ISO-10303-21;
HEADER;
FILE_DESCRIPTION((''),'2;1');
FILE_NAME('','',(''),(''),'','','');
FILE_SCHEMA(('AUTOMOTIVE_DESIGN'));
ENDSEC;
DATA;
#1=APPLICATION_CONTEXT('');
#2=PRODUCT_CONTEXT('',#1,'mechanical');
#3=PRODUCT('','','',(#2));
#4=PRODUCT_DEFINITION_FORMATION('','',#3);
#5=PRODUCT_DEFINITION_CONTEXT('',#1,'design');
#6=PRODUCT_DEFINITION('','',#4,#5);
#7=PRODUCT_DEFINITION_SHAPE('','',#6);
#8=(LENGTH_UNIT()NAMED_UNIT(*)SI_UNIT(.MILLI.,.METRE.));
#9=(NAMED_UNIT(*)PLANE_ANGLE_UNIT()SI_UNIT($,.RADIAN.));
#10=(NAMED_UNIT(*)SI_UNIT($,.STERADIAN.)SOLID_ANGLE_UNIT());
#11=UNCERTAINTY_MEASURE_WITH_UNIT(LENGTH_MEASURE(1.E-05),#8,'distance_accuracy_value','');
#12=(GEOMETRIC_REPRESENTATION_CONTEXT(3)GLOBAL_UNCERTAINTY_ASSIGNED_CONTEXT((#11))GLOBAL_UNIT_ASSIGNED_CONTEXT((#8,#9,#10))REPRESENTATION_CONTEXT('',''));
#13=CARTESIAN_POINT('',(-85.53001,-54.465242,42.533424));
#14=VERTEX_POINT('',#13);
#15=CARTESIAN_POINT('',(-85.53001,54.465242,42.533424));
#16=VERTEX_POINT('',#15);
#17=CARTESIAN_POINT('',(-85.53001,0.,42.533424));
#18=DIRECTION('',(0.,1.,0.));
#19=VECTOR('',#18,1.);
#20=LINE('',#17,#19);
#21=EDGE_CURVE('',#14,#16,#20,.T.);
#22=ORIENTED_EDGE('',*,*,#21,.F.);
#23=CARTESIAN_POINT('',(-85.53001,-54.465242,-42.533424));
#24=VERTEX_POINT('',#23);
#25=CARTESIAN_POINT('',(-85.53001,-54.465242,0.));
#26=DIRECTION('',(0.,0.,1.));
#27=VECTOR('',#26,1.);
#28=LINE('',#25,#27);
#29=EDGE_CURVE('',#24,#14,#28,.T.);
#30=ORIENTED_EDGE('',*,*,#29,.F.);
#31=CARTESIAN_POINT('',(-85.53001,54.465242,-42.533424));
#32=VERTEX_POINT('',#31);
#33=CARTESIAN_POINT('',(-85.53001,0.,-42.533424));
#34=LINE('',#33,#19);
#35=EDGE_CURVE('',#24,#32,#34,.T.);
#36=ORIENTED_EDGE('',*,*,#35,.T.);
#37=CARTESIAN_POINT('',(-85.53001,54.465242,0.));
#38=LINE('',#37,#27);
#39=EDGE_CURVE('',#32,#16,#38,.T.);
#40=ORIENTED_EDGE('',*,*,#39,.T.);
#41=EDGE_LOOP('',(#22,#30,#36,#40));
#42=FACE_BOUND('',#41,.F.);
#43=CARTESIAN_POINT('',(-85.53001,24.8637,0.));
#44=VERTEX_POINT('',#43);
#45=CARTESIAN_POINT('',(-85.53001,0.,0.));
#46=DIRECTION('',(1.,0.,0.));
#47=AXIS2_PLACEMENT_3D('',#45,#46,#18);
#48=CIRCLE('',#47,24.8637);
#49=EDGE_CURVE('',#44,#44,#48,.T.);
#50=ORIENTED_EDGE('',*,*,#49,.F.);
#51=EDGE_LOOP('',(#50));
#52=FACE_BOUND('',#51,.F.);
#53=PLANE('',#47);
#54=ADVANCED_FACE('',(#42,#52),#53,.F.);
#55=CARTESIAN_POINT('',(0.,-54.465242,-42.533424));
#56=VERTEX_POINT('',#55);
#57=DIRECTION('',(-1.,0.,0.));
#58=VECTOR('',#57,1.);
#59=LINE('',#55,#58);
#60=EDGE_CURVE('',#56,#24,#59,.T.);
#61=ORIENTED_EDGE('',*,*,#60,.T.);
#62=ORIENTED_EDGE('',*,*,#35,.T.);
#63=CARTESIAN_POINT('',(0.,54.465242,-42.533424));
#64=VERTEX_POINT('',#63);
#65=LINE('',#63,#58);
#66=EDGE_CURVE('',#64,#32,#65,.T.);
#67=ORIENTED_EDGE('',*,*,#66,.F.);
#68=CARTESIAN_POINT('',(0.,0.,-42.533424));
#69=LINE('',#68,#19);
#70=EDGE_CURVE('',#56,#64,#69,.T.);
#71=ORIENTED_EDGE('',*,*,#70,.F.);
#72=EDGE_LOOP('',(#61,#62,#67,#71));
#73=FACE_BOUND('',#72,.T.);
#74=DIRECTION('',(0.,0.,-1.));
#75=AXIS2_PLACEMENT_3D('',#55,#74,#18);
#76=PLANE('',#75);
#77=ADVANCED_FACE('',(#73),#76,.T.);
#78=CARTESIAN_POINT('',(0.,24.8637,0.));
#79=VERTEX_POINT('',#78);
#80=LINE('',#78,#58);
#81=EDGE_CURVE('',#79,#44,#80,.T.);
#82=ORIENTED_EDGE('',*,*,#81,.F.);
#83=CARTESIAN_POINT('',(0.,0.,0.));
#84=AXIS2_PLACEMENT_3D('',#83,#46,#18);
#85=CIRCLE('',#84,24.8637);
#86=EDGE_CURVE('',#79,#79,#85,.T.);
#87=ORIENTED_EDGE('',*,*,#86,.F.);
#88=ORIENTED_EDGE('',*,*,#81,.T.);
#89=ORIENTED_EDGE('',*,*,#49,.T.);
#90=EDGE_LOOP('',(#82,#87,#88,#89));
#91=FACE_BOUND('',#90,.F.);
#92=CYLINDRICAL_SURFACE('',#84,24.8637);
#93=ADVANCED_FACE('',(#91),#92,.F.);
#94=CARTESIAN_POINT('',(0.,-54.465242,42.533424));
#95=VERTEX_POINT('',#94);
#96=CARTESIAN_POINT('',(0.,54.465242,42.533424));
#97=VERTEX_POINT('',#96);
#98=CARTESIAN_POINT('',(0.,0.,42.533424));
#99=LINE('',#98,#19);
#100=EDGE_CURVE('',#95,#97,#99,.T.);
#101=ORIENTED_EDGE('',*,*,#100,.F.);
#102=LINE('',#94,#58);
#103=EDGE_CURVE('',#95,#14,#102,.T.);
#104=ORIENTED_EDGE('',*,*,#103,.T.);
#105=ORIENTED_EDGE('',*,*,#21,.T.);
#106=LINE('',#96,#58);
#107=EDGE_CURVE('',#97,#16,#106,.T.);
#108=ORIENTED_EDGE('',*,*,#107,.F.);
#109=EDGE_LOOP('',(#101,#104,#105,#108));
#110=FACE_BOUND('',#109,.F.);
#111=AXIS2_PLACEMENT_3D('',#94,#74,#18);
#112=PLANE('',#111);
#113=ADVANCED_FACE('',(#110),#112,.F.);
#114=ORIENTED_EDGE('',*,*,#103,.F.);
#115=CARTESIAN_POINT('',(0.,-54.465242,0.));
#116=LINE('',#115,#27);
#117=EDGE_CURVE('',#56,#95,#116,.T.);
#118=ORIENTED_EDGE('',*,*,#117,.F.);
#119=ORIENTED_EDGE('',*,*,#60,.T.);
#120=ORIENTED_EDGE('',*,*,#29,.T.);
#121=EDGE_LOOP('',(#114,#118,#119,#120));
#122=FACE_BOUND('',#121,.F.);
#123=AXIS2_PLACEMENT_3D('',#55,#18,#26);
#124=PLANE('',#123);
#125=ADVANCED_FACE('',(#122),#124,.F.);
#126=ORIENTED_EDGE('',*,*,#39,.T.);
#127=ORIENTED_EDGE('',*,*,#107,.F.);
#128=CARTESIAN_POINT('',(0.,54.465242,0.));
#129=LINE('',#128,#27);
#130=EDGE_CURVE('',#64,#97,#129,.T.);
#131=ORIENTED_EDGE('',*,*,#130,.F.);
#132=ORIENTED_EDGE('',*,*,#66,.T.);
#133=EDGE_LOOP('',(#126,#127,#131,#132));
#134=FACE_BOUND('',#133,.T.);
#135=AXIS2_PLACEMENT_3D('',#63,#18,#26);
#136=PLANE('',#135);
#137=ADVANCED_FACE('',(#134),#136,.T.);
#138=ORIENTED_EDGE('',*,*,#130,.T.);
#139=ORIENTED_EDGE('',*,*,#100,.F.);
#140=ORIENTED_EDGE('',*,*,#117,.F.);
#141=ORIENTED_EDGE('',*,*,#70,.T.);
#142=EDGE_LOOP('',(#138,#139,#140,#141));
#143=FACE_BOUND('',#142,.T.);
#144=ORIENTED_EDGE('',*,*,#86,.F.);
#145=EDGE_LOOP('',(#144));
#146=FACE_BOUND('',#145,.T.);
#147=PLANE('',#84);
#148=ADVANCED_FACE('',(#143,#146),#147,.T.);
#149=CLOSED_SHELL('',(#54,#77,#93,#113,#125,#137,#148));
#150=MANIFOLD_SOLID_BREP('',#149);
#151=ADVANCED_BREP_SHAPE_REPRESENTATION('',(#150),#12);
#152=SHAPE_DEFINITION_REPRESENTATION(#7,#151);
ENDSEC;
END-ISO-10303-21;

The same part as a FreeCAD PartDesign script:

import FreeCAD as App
import Part
import Sketcher

doc = App.newDocument("Part")
body = doc.addObject("PartDesign::Body", "Body")

sketch1 = doc.addObject("Sketcher::SketchObject", "Sketch")
body.addObject(sketch1)
sketch1.AttachmentSupport = (doc.YZ_Plane, [""])
sketch1.MapMode = "FlatFace"
sketch1.addGeometry([
    Part.LineSegment(App.Vector(-54.465242, 42.533424, 0), App.Vector(-54.465242, -42.533424, 0)),
    Part.LineSegment(App.Vector(-54.465242, -42.533424, 0), App.Vector(54.465242, -42.533424, 0)),
    Part.LineSegment(App.Vector(54.465242, -42.533424, 0), App.Vector(54.465242, 42.533424, 0)),
    Part.LineSegment(App.Vector(54.465242, 42.533424, 0), App.Vector(-54.465242, 42.533424, 0)),
    Part.Circle(App.Vector(0, 0, 0), App.Vector(0, 0, 1), 24.8637),
], False)
sketch1.addConstraint([
    Sketcher.Constraint("Coincident", 0, 2, 1, 1),
    Sketcher.Constraint("Coincident", 1, 2, 2, 1),
    Sketcher.Constraint("Coincident", 2, 2, 3, 1),
    Sketcher.Constraint("Coincident", 3, 2, 0, 1),
    Sketcher.Constraint("Vertical", 0),
    Sketcher.Constraint("Horizontal", 1),
    Sketcher.Constraint("Vertical", 2),
    Sketcher.Constraint("Horizontal", 3),
    Sketcher.Constraint("Coincident", 4, 3, -1, 1),
    Sketcher.Constraint("Symmetric", 0, 2, 2, 2, -1, 1),
    Sketcher.Constraint("Diameter", 4, 49.7274),
    Sketcher.Constraint("DistanceX", 1, 1, 1, 2, 108.930484),
    Sketcher.Constraint("DistanceY", 0, 2, 0, 1, 85.066848),
])
pad1 = doc.addObject("PartDesign::Pad", "Pad")
body.addObject(pad1)
pad1.Profile = sketch1
pad1.Length = 85.53001
pad1.Reversed = True

doc.recompute()
